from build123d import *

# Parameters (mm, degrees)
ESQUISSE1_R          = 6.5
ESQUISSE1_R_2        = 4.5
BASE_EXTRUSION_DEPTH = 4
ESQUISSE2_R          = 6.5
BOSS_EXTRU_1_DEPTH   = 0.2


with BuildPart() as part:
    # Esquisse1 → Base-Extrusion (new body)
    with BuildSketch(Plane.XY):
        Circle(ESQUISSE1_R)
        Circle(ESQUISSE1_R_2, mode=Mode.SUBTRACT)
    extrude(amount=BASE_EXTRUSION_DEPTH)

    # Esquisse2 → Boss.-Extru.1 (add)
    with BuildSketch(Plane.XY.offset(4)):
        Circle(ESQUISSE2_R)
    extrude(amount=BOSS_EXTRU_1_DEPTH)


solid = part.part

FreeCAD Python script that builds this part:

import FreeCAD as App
import Part
import Sketcher

doc = App.newDocument("Part")
body = doc.addObject("PartDesign::Body", "Body")

# Sketch on XY plane
sketch1 = body.newObject("Sketcher::SketchObject", "Sketch")
sketch1.AttachmentSupport = (doc.getObject("XY_Plane"), [""])
sketch1.MapMode = "FlatFace"
sketch1.addGeometry(Part.Circle(App.Vector(0, 0, 0), App.Vector(0, 0, 1), 6.5), False)
sketch1.addGeometry(Part.Circle(App.Vector(0, 0, 0), App.Vector(0, 0, 1), 4.5), False)
sketch1.addConstraint(Sketcher.Constraint("Coincident", 0, 3, -1, 1))
sketch1.addConstraint(Sketcher.Constraint("Coincident", 1, 3, -1, 1))
sketch1.addConstraint(Sketcher.Constraint("Diameter", 0, 13.0))
sketch1.addConstraint(Sketcher.Constraint("Diameter", 1, 9.0))
pad1 = body.newObject("PartDesign::Pad", "Pad")
pad1.Profile = sketch1
pad1.Length = 4

# Sketch on XY plane
sketch2 = body.newObject("Sketcher::SketchObject", "Sketch001")
sketch2.AttachmentSupport = (doc.getObject("XY_Plane"), [""])
sketch2.MapMode = "FlatFace"
sketch2.AttachmentOffset = App.Placement(App.Vector(0, 0, 4), App.Rotation())
sketch2.addGeometry(Part.Circle(App.Vector(0, 0, 0), App.Vector(0, 0, 1), 6), False)
sketch2.addConstraint(Sketcher.Constraint("Coincident", 0, 3, -1, 1))
sketch2.addConstraint(Sketcher.Constraint("Diameter", 0, 13.0))
pad2 = body.newObject("PartDesign::Pad", "Pad001")
pad2.Profile = sketch2
pad2.Length = 0.2

doc.recompute()
